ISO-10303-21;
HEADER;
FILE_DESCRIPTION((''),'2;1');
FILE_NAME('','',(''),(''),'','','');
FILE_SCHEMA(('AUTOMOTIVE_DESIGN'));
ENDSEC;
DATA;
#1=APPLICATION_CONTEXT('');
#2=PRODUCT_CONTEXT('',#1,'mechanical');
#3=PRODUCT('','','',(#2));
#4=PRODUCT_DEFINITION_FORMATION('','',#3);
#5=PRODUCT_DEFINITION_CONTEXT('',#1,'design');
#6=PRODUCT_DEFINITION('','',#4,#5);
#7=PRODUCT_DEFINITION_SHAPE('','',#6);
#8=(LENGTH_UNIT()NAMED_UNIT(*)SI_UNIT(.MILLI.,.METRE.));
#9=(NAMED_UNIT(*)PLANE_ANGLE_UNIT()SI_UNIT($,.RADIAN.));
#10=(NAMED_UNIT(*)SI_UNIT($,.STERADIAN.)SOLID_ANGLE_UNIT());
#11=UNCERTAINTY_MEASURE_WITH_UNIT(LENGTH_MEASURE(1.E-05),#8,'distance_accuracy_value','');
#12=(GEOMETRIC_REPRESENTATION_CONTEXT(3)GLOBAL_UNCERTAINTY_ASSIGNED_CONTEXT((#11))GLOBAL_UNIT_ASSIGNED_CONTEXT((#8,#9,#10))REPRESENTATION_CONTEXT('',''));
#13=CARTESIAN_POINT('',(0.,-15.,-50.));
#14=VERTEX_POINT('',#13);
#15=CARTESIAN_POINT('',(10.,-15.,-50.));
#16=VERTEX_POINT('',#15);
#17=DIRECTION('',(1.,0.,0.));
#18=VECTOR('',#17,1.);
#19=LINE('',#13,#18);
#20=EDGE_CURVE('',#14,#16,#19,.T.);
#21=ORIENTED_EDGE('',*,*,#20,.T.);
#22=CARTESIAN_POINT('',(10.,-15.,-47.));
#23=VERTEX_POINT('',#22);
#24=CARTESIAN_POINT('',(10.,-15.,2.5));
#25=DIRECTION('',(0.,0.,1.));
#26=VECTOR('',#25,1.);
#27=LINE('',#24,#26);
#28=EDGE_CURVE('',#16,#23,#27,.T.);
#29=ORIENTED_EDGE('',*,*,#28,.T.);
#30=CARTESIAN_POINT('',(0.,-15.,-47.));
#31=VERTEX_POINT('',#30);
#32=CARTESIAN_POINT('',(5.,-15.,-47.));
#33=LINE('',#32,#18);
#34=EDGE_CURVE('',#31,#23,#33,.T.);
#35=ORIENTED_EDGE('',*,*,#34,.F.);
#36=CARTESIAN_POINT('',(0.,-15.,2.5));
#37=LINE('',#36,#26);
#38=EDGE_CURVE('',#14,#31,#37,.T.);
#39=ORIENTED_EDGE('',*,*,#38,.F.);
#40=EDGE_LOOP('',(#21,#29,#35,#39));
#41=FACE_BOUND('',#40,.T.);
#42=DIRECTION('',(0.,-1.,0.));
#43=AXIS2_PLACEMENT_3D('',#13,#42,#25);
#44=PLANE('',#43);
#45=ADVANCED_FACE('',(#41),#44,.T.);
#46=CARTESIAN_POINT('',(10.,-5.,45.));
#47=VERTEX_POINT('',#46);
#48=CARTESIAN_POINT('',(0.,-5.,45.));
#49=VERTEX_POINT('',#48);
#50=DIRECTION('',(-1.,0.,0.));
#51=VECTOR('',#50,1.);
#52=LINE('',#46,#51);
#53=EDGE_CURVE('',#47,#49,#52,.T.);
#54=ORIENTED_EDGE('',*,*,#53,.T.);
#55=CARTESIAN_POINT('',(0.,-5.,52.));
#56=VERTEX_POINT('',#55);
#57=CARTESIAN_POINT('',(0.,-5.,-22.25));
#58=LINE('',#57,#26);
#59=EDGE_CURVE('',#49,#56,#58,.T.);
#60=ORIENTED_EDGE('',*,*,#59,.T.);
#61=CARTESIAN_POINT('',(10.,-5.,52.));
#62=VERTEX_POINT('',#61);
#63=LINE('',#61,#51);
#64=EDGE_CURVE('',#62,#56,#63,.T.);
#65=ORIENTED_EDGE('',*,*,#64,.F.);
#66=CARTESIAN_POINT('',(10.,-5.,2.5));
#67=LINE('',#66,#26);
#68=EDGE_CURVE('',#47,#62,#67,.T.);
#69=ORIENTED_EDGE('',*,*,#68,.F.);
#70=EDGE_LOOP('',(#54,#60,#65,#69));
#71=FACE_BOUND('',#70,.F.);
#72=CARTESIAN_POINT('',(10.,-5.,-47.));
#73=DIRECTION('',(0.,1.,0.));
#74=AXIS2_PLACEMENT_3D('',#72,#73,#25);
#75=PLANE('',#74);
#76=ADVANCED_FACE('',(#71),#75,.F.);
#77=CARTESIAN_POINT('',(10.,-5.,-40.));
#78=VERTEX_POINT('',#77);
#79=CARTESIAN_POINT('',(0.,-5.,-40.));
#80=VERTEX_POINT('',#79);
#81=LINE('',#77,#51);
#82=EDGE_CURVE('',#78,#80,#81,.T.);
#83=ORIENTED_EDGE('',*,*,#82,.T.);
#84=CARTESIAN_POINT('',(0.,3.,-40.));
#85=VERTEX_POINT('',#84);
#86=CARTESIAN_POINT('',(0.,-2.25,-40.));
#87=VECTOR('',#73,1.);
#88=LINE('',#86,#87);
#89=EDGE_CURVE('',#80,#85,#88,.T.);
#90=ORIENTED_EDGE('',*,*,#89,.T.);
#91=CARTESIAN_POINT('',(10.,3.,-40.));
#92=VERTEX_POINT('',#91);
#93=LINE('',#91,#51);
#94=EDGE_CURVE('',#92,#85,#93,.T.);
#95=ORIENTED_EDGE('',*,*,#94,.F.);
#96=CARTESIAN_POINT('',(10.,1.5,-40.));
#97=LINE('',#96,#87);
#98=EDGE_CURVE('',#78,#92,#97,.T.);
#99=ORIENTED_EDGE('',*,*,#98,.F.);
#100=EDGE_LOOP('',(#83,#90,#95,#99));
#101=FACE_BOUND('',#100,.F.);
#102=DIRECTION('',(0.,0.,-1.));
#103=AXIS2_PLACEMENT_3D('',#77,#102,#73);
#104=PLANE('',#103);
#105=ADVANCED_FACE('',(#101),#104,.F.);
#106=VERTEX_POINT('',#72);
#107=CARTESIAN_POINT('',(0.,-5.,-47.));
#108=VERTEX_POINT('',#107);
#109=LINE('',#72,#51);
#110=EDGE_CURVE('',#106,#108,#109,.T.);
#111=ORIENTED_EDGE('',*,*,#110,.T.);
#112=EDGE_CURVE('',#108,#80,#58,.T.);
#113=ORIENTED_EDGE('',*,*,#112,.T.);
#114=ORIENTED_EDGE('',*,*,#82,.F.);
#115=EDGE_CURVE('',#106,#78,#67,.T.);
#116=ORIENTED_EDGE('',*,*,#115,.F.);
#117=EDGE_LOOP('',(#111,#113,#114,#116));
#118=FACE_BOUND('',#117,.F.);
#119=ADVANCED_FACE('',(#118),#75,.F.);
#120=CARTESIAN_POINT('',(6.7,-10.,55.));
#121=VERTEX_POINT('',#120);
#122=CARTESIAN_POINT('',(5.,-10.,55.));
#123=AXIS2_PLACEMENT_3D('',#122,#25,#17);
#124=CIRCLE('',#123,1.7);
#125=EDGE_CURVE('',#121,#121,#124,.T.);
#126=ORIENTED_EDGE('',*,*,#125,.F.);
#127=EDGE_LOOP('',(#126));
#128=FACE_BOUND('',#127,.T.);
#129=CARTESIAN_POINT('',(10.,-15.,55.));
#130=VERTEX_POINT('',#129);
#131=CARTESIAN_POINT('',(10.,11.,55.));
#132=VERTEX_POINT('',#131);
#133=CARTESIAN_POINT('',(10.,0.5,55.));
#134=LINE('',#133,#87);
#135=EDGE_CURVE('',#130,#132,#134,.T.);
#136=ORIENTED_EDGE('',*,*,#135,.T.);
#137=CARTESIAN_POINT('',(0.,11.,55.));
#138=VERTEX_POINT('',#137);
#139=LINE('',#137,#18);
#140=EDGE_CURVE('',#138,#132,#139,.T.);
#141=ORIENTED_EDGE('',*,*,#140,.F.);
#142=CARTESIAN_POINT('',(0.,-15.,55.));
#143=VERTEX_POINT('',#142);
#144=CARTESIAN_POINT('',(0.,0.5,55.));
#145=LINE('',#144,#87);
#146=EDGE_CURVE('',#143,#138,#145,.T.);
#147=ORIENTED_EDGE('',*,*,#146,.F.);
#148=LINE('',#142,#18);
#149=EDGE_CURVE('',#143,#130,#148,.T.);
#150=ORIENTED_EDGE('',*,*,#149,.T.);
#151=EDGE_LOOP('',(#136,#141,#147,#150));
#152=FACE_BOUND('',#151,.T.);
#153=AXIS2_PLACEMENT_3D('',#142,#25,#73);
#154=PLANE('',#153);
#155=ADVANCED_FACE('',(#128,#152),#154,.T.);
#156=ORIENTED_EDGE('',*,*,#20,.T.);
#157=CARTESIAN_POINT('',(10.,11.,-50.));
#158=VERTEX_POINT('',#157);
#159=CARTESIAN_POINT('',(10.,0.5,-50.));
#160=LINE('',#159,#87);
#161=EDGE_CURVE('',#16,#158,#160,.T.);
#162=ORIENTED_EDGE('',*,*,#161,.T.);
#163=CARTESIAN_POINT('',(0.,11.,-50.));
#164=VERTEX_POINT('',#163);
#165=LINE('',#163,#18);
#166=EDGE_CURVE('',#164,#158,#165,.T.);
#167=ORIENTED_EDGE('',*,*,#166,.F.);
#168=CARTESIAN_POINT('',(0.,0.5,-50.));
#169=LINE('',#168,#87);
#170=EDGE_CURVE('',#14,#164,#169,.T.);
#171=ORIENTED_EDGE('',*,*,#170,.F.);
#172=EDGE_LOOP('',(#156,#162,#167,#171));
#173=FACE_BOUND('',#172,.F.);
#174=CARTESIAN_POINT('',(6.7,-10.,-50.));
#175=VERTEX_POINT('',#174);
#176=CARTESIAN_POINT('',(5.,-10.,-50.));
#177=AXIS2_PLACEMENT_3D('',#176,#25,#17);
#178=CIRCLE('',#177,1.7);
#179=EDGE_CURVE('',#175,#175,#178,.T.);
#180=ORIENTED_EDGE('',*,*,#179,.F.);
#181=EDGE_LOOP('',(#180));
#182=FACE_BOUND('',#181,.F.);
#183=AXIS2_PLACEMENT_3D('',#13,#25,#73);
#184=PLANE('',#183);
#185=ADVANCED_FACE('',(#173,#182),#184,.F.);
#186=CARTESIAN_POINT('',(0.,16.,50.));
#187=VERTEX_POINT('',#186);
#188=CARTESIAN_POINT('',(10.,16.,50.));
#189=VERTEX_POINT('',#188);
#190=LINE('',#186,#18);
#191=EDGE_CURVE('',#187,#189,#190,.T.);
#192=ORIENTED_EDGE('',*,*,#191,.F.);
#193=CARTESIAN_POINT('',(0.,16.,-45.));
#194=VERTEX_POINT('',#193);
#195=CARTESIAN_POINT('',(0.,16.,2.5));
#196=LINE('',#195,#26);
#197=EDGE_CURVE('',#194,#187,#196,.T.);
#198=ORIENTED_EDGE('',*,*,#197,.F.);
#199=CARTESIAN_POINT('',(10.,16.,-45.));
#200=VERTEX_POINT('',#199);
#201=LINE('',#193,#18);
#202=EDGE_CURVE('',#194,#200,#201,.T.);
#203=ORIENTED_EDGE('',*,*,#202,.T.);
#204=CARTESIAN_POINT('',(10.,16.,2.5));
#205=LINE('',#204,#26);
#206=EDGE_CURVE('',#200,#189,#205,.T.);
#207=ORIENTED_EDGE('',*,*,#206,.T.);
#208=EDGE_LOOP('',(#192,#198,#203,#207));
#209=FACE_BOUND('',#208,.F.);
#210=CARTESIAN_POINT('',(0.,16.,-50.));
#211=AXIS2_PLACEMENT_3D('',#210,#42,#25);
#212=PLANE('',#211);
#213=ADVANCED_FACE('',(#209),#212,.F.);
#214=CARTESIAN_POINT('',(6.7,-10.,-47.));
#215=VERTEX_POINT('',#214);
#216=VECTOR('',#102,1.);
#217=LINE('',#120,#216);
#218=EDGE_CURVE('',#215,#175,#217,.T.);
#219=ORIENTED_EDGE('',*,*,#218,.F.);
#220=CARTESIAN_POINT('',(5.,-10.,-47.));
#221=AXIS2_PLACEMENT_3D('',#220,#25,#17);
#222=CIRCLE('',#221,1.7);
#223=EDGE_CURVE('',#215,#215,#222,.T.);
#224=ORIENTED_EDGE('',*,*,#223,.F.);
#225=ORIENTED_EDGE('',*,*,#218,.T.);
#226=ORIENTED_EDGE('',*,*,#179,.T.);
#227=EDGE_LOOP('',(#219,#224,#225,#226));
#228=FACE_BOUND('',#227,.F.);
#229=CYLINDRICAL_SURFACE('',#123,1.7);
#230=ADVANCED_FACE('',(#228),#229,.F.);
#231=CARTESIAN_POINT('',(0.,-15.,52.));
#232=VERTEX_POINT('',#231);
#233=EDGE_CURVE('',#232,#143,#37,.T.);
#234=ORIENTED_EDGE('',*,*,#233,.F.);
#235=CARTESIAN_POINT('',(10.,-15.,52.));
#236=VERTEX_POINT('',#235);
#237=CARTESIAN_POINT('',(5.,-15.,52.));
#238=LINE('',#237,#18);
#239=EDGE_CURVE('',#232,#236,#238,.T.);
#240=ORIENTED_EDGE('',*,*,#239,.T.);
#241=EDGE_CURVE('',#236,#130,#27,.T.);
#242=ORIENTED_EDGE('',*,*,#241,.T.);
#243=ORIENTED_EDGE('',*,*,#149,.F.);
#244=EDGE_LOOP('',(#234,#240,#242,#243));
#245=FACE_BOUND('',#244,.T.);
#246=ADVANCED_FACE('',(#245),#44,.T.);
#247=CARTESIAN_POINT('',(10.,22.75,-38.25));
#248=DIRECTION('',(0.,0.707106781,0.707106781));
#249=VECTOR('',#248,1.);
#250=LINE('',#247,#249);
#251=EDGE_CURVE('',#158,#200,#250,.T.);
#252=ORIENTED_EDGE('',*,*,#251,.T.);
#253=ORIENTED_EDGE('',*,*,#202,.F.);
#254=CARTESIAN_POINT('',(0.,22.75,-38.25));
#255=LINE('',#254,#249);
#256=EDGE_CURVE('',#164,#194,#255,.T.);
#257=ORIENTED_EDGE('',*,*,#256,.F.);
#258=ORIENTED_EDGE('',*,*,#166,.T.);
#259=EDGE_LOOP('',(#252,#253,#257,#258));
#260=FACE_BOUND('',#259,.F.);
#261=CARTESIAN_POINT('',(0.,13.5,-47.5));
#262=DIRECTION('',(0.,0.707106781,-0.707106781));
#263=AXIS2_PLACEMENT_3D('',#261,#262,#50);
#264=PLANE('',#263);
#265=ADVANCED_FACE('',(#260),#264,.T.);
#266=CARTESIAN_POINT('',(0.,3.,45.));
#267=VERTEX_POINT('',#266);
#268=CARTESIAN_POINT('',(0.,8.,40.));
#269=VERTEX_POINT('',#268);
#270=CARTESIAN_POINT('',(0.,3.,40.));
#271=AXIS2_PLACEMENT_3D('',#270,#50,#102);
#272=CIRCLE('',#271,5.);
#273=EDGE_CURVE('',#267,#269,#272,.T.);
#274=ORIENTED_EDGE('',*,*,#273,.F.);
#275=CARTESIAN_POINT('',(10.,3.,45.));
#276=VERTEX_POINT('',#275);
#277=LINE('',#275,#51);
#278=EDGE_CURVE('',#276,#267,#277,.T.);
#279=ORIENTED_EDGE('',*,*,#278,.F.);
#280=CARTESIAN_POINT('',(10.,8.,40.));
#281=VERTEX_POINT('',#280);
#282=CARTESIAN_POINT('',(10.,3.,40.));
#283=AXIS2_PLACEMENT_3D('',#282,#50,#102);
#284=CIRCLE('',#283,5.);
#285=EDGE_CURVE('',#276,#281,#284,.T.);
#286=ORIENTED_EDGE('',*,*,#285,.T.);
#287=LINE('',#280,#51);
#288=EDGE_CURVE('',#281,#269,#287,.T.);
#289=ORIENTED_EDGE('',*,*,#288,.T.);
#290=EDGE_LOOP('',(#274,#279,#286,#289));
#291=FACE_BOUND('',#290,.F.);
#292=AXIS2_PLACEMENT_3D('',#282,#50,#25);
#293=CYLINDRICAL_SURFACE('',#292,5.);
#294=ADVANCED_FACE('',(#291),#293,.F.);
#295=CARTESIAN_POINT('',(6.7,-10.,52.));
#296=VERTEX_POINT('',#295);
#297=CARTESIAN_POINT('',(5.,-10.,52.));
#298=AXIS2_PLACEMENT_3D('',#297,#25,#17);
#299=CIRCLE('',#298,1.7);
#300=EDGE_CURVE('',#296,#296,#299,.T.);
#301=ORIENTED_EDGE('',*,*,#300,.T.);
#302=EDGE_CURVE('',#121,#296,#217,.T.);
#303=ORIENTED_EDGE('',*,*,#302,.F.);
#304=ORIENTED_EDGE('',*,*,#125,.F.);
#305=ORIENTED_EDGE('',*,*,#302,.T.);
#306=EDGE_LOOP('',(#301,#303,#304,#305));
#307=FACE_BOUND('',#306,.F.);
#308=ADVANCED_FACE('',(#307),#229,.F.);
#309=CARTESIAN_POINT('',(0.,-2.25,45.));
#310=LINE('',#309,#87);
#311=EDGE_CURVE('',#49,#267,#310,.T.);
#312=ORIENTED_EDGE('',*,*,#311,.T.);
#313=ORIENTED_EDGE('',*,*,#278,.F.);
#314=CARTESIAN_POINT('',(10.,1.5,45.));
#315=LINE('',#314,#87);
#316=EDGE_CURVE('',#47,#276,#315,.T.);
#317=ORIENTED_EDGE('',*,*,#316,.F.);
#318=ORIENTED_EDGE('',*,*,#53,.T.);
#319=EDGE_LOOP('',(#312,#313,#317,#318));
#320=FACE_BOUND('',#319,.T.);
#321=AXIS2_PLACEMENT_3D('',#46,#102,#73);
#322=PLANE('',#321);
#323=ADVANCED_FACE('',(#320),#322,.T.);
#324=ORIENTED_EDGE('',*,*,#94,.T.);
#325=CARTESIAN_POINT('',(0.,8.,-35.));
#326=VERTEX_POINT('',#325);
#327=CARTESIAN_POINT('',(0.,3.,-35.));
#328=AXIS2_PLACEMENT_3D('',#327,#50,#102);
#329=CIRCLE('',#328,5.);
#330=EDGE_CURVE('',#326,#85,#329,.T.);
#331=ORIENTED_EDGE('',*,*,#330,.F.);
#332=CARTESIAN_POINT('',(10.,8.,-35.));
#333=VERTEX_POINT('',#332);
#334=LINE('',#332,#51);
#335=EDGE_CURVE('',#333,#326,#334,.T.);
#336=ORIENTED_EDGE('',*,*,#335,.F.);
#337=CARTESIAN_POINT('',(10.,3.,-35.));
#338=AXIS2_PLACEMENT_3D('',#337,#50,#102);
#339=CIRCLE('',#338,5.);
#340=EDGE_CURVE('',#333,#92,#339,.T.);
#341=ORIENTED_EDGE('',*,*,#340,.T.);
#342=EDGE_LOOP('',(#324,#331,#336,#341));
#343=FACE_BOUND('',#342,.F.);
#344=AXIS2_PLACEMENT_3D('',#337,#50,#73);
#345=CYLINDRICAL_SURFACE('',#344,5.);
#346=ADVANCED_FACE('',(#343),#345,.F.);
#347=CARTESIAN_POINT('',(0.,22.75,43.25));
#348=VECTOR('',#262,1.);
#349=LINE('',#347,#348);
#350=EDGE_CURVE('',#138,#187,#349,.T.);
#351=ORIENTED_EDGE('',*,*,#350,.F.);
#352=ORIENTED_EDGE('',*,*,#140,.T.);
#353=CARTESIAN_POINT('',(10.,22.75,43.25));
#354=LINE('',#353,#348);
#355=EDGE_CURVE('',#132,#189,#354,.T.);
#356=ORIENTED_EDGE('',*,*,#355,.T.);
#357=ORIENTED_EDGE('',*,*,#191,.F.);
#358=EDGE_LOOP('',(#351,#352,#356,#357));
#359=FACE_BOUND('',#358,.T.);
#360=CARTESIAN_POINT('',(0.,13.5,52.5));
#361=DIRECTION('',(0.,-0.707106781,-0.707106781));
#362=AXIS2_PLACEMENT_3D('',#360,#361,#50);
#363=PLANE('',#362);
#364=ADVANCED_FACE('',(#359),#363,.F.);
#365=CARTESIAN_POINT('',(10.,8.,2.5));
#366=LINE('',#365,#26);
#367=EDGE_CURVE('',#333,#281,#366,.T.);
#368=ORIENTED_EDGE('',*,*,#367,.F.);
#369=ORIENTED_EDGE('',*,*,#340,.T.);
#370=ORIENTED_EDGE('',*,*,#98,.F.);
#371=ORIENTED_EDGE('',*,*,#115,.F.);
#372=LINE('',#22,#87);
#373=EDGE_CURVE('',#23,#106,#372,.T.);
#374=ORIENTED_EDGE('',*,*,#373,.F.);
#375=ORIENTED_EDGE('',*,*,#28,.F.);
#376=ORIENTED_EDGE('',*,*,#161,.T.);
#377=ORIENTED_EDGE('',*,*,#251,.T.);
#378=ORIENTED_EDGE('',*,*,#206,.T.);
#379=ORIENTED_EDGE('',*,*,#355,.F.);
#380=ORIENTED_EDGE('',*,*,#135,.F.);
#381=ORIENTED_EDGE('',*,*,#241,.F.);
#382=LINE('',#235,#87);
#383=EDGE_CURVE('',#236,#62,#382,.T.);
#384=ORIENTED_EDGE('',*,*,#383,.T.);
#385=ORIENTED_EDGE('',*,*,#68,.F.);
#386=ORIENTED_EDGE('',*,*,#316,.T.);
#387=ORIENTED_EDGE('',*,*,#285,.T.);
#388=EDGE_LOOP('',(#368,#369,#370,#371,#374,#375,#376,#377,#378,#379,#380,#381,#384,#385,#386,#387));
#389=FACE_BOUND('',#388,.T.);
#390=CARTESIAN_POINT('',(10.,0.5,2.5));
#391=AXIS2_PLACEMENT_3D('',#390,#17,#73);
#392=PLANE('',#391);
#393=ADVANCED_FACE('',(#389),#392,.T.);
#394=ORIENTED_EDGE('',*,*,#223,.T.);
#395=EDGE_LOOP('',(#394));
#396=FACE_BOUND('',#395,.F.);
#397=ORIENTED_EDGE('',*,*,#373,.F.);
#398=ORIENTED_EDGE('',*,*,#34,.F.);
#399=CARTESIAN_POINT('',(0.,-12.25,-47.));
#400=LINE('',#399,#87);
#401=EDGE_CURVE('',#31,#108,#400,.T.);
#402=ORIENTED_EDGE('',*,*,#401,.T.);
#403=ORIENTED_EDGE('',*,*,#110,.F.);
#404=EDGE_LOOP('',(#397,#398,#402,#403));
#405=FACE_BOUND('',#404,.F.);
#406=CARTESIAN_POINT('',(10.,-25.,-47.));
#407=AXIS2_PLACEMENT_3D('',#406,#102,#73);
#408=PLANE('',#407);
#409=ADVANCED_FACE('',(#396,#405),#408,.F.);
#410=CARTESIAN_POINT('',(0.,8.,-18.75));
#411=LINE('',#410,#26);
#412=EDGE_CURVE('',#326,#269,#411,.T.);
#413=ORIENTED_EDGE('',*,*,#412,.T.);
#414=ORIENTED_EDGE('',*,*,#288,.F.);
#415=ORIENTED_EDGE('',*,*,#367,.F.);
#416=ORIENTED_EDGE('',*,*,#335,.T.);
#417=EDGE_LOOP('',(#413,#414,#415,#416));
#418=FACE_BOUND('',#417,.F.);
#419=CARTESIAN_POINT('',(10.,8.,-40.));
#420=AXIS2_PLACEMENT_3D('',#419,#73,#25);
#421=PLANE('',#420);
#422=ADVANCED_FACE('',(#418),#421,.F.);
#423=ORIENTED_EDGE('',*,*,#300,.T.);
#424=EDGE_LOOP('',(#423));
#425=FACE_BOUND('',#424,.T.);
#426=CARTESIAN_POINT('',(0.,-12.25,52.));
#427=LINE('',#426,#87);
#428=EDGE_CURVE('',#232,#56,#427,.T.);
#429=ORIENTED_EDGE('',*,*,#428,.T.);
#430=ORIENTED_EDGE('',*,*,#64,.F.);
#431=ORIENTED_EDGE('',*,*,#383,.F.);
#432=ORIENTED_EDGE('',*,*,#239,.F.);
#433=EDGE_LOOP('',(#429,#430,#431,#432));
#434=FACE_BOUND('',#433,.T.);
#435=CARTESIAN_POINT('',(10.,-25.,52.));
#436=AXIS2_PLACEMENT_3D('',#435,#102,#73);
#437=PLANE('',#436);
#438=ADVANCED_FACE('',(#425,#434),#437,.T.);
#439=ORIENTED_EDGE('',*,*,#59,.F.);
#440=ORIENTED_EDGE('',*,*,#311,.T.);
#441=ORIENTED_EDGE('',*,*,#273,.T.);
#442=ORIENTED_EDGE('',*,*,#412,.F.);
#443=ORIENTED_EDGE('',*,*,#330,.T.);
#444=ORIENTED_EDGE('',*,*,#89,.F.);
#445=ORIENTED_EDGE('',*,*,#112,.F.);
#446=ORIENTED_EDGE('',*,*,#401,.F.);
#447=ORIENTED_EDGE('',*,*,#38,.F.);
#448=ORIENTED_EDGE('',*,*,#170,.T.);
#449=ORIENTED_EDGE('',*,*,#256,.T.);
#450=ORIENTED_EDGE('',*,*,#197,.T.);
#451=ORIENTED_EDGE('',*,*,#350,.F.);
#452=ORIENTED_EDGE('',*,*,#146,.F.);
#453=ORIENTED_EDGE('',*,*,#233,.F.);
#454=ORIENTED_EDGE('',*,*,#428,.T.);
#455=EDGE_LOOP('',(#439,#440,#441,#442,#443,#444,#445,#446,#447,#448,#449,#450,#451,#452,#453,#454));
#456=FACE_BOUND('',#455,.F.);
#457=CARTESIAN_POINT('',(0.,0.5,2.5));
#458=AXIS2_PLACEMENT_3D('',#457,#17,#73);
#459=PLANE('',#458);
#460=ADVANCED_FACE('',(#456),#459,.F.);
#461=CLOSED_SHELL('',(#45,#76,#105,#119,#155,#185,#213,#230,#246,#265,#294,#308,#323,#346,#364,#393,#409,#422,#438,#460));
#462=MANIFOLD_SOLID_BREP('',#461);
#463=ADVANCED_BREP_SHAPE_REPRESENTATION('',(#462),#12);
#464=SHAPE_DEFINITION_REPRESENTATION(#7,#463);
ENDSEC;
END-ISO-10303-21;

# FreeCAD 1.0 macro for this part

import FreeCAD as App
import Part
import Sketcher


def edges_at(feature, points):
    """Names of the edges that pass closest to the given points."""
    edges = feature.Shape.Edges
    near = lambda p: min(range(len(edges)), key=lambda i: edges[i].distToShape(Part.Vertex(*p))[0])
    return sorted({f"Edge{near(p) + 1}" for p in points})

doc = App.newDocument("Part")
body = doc.addObject("PartDesign::Body", "Body")

# Sketch on YZ plane
sketch1 = doc.addObject("Sketcher::SketchObject", "Sketch")
body.addObject(sketch1)
sketch1.AttachmentSupport = (doc.YZ_Plane, [""])
sketch1.MapMode = "FlatFace"
sketch1.addGeometry([
    Part.LineSegment(App.Vector(-15, 55, 0), App.Vector(-15, -50, 0)),
    Part.LineSegment(App.Vector(-15, -50, 0), App.Vector(16, -50, 0)),
    Part.LineSegment(App.Vector(16, -50, 0), App.Vector(16, 55, 0)),
    Part.LineSegment(App.Vector(16, 55, 0), App.Vector(-15, 55, 0)),
], False)
sketch1.addConstraint([
    Sketcher.Constraint("Coincident", 0, 2, 1, 1),
    Sketcher.Constraint("Coincident", 1, 2, 2, 1),
    Sketcher.Constraint("Coincident", 2, 2, 3, 1),
    Sketcher.Constraint("Coincident", 3, 2, 0, 1),
    Sketcher.Constraint("Vertical", 0),
    Sketcher.Constraint("Horizontal", 1),
    Sketcher.Constraint("Vertical", 2),
    Sketcher.Constraint("Horizontal", 3),
    Sketcher.Constraint("DistanceX", 1, 1, 1, 2, 31.0),
    Sketcher.Constraint("DistanceY", 0, 2, 0, 1, 105.0),
    Sketcher.Constraint("DistanceX", 0, 2, -1, 1, 15.0),
    Sketcher.Constraint("DistanceY", 0, 2, -1, 1, 50.0),
])
pad1 = doc.addObject("PartDesign::Pad", "Pad")
body.addObject(pad1)
pad1.Profile = sketch1
pad1.Length = 10

# Sketch on YZ plane
sketch2 = doc.addObject("Sketcher::SketchObject", "Sketch001")
body.addObject(sketch2)
sketch2.AttachmentSupport = (doc.YZ_Plane, [""])
sketch2.MapMode = "FlatFace"
sketch2.AttachmentOffset = App.Placement(App.Vector(0, 0, 10), App.Rotation())
sketch2.addGeometry([
    Part.LineSegment(App.Vector(-25, 52, 0), App.Vector(-25, -47, 0)),
    Part.LineSegment(App.Vector(-25, -47, 0), App.Vector(-5, -47, 0)),
    Part.LineSegment(App.Vector(-5, -47, 0), App.Vector(-5, 52, 0)),
    Part.LineSegment(App.Vector(-5, 52, 0), App.Vector(-25, 52, 0)),
], False)
sketch2.addConstraint([
    Sketcher.Constraint("Coincident", 0, 2, 1, 1),
    Sketcher.Constraint("Coincident", 1, 2, 2, 1),
    Sketcher.Constraint("Coincident", 2, 2, 3, 1),
    Sketcher.Constraint("Coincident", 3, 2, 0, 1),
    Sketcher.Constraint("Vertical", 0),
    Sketcher.Constraint("Horizontal", 1),
    Sketcher.Constraint("Vertical", 2),
    Sketcher.Constraint("Horizontal", 3),
    Sketcher.Constraint("DistanceX", 1, 1, 1, 2, 20.0),
    Sketcher.Constraint("DistanceY", 0, 2, 0, 1, 99.0),
    Sketcher.Constraint("DistanceX", 0, 2, -1, 1, 25.0),
    Sketcher.Constraint("DistanceY", 0, 2, -1, 1, 47.0),
])
pocket1 = doc.addObject("PartDesign::Pocket", "Pocket")
body.addObject(pocket1)
pocket1.Profile = sketch2
pocket1.Type = "ThroughAll"

# Sketch on YZ plane
sketch3 = doc.addObject("Sketcher::SketchObject", "Sketch002")
body.addObject(sketch3)
sketch3.AttachmentSupport = (doc.YZ_Plane, [""])
sketch3.MapMode = "FlatFace"
sketch3.AttachmentOffset = App.Placement(App.Vector(0, 0, 10), App.Rotation())
sketch3.addGeometry([
    Part.LineSegment(App.Vector(-5, 45, 0), App.Vector(-5, -40, 0)),
    Part.LineSegment(App.Vector(-5, -40, 0), App.Vector(8, -40, 0)),
    Part.LineSegment(App.Vector(8, -40, 0), App.Vector(8, 45, 0)),
    Part.LineSegment(App.Vector(8, 45, 0), App.Vector(-5, 45, 0)),
], False)
sketch3.addConstraint([
    Sketcher.Constraint("Coincident", 0, 2, 1, 1),
    Sketcher.Constraint("Coincident", 1, 2, 2, 1),
    Sketcher.Constraint("Coincident", 2, 2, 3, 1),
    Sketcher.Constraint("Coincident", 3, 2, 0, 1),
    Sketcher.Constraint("Vertical", 0),
    Sketcher.Constraint("Horizontal", 1),
    Sketcher.Constraint("Vertical", 2),
    Sketcher.Constraint("Horizontal", 3),
    Sketcher.Constraint("DistanceX", 1, 1, 1, 2, 13.0),
    Sketcher.Constraint("DistanceY", 0, 2, 0, 1, 85.0),
    Sketcher.Constraint("DistanceX", 0, 2, -1, 1, 5.0),
    Sketcher.Constraint("DistanceY", 0, 2, -1, 1, 40.0),
])
pocket2 = doc.addObject("PartDesign::Pocket", "Pocket001")
body.addObject(pocket2)
pocket2.Profile = sketch3
pocket2.Type = "ThroughAll"
doc.recompute()

chamfer = doc.addObject("PartDesign::Chamfer", "Chamfer")
body.addObject(chamfer)
chamfer.Base = (pocket2, edges_at(pocket2, [(5, 16, 55), (5, 16, -50)]))
chamfer.Size = 5

# Sketch on XY plane
sketch4 = doc.addObject("Sketcher::SketchObject", "Sketch003")
body.addObject(sketch4)
sketch4.AttachmentSupport = (doc.XY_Plane, [""])
sketch4.MapMode = "FlatFace"
sketch4.AttachmentOffset = App.Placement(App.Vector(0, 0, 55), App.Rotation())
sketch4.addGeometry(Part.Circle(App.Vector(5, -10, 0), App.Vector(0, 0, 1), 1.7), False)
sketch4.addConstraint([
    Sketcher.Constraint("Diameter", 0, 3.4),
    Sketcher.Constraint("DistanceX", -1, 1, 0, 3, 5.0),
    Sketcher.Constraint("DistanceY", 0, 3, -1, 1, 10.0),
])
pocket3 = doc.addObject("PartDesign::Pocket", "Pocket002")
body.addObject(pocket3)
pocket3.Profile = sketch4
pocket3.Type = "ThroughAll"
doc.recompute()

fillet = doc.addObject("PartDesign::Fillet", "Fillet")
body.addObject(fillet)
fillet.Base = (pocket3, edges_at(pocket3, [(5, 8, 45), (5, 8, -40)]))
fillet.Radius = 5

doc.recompute()
